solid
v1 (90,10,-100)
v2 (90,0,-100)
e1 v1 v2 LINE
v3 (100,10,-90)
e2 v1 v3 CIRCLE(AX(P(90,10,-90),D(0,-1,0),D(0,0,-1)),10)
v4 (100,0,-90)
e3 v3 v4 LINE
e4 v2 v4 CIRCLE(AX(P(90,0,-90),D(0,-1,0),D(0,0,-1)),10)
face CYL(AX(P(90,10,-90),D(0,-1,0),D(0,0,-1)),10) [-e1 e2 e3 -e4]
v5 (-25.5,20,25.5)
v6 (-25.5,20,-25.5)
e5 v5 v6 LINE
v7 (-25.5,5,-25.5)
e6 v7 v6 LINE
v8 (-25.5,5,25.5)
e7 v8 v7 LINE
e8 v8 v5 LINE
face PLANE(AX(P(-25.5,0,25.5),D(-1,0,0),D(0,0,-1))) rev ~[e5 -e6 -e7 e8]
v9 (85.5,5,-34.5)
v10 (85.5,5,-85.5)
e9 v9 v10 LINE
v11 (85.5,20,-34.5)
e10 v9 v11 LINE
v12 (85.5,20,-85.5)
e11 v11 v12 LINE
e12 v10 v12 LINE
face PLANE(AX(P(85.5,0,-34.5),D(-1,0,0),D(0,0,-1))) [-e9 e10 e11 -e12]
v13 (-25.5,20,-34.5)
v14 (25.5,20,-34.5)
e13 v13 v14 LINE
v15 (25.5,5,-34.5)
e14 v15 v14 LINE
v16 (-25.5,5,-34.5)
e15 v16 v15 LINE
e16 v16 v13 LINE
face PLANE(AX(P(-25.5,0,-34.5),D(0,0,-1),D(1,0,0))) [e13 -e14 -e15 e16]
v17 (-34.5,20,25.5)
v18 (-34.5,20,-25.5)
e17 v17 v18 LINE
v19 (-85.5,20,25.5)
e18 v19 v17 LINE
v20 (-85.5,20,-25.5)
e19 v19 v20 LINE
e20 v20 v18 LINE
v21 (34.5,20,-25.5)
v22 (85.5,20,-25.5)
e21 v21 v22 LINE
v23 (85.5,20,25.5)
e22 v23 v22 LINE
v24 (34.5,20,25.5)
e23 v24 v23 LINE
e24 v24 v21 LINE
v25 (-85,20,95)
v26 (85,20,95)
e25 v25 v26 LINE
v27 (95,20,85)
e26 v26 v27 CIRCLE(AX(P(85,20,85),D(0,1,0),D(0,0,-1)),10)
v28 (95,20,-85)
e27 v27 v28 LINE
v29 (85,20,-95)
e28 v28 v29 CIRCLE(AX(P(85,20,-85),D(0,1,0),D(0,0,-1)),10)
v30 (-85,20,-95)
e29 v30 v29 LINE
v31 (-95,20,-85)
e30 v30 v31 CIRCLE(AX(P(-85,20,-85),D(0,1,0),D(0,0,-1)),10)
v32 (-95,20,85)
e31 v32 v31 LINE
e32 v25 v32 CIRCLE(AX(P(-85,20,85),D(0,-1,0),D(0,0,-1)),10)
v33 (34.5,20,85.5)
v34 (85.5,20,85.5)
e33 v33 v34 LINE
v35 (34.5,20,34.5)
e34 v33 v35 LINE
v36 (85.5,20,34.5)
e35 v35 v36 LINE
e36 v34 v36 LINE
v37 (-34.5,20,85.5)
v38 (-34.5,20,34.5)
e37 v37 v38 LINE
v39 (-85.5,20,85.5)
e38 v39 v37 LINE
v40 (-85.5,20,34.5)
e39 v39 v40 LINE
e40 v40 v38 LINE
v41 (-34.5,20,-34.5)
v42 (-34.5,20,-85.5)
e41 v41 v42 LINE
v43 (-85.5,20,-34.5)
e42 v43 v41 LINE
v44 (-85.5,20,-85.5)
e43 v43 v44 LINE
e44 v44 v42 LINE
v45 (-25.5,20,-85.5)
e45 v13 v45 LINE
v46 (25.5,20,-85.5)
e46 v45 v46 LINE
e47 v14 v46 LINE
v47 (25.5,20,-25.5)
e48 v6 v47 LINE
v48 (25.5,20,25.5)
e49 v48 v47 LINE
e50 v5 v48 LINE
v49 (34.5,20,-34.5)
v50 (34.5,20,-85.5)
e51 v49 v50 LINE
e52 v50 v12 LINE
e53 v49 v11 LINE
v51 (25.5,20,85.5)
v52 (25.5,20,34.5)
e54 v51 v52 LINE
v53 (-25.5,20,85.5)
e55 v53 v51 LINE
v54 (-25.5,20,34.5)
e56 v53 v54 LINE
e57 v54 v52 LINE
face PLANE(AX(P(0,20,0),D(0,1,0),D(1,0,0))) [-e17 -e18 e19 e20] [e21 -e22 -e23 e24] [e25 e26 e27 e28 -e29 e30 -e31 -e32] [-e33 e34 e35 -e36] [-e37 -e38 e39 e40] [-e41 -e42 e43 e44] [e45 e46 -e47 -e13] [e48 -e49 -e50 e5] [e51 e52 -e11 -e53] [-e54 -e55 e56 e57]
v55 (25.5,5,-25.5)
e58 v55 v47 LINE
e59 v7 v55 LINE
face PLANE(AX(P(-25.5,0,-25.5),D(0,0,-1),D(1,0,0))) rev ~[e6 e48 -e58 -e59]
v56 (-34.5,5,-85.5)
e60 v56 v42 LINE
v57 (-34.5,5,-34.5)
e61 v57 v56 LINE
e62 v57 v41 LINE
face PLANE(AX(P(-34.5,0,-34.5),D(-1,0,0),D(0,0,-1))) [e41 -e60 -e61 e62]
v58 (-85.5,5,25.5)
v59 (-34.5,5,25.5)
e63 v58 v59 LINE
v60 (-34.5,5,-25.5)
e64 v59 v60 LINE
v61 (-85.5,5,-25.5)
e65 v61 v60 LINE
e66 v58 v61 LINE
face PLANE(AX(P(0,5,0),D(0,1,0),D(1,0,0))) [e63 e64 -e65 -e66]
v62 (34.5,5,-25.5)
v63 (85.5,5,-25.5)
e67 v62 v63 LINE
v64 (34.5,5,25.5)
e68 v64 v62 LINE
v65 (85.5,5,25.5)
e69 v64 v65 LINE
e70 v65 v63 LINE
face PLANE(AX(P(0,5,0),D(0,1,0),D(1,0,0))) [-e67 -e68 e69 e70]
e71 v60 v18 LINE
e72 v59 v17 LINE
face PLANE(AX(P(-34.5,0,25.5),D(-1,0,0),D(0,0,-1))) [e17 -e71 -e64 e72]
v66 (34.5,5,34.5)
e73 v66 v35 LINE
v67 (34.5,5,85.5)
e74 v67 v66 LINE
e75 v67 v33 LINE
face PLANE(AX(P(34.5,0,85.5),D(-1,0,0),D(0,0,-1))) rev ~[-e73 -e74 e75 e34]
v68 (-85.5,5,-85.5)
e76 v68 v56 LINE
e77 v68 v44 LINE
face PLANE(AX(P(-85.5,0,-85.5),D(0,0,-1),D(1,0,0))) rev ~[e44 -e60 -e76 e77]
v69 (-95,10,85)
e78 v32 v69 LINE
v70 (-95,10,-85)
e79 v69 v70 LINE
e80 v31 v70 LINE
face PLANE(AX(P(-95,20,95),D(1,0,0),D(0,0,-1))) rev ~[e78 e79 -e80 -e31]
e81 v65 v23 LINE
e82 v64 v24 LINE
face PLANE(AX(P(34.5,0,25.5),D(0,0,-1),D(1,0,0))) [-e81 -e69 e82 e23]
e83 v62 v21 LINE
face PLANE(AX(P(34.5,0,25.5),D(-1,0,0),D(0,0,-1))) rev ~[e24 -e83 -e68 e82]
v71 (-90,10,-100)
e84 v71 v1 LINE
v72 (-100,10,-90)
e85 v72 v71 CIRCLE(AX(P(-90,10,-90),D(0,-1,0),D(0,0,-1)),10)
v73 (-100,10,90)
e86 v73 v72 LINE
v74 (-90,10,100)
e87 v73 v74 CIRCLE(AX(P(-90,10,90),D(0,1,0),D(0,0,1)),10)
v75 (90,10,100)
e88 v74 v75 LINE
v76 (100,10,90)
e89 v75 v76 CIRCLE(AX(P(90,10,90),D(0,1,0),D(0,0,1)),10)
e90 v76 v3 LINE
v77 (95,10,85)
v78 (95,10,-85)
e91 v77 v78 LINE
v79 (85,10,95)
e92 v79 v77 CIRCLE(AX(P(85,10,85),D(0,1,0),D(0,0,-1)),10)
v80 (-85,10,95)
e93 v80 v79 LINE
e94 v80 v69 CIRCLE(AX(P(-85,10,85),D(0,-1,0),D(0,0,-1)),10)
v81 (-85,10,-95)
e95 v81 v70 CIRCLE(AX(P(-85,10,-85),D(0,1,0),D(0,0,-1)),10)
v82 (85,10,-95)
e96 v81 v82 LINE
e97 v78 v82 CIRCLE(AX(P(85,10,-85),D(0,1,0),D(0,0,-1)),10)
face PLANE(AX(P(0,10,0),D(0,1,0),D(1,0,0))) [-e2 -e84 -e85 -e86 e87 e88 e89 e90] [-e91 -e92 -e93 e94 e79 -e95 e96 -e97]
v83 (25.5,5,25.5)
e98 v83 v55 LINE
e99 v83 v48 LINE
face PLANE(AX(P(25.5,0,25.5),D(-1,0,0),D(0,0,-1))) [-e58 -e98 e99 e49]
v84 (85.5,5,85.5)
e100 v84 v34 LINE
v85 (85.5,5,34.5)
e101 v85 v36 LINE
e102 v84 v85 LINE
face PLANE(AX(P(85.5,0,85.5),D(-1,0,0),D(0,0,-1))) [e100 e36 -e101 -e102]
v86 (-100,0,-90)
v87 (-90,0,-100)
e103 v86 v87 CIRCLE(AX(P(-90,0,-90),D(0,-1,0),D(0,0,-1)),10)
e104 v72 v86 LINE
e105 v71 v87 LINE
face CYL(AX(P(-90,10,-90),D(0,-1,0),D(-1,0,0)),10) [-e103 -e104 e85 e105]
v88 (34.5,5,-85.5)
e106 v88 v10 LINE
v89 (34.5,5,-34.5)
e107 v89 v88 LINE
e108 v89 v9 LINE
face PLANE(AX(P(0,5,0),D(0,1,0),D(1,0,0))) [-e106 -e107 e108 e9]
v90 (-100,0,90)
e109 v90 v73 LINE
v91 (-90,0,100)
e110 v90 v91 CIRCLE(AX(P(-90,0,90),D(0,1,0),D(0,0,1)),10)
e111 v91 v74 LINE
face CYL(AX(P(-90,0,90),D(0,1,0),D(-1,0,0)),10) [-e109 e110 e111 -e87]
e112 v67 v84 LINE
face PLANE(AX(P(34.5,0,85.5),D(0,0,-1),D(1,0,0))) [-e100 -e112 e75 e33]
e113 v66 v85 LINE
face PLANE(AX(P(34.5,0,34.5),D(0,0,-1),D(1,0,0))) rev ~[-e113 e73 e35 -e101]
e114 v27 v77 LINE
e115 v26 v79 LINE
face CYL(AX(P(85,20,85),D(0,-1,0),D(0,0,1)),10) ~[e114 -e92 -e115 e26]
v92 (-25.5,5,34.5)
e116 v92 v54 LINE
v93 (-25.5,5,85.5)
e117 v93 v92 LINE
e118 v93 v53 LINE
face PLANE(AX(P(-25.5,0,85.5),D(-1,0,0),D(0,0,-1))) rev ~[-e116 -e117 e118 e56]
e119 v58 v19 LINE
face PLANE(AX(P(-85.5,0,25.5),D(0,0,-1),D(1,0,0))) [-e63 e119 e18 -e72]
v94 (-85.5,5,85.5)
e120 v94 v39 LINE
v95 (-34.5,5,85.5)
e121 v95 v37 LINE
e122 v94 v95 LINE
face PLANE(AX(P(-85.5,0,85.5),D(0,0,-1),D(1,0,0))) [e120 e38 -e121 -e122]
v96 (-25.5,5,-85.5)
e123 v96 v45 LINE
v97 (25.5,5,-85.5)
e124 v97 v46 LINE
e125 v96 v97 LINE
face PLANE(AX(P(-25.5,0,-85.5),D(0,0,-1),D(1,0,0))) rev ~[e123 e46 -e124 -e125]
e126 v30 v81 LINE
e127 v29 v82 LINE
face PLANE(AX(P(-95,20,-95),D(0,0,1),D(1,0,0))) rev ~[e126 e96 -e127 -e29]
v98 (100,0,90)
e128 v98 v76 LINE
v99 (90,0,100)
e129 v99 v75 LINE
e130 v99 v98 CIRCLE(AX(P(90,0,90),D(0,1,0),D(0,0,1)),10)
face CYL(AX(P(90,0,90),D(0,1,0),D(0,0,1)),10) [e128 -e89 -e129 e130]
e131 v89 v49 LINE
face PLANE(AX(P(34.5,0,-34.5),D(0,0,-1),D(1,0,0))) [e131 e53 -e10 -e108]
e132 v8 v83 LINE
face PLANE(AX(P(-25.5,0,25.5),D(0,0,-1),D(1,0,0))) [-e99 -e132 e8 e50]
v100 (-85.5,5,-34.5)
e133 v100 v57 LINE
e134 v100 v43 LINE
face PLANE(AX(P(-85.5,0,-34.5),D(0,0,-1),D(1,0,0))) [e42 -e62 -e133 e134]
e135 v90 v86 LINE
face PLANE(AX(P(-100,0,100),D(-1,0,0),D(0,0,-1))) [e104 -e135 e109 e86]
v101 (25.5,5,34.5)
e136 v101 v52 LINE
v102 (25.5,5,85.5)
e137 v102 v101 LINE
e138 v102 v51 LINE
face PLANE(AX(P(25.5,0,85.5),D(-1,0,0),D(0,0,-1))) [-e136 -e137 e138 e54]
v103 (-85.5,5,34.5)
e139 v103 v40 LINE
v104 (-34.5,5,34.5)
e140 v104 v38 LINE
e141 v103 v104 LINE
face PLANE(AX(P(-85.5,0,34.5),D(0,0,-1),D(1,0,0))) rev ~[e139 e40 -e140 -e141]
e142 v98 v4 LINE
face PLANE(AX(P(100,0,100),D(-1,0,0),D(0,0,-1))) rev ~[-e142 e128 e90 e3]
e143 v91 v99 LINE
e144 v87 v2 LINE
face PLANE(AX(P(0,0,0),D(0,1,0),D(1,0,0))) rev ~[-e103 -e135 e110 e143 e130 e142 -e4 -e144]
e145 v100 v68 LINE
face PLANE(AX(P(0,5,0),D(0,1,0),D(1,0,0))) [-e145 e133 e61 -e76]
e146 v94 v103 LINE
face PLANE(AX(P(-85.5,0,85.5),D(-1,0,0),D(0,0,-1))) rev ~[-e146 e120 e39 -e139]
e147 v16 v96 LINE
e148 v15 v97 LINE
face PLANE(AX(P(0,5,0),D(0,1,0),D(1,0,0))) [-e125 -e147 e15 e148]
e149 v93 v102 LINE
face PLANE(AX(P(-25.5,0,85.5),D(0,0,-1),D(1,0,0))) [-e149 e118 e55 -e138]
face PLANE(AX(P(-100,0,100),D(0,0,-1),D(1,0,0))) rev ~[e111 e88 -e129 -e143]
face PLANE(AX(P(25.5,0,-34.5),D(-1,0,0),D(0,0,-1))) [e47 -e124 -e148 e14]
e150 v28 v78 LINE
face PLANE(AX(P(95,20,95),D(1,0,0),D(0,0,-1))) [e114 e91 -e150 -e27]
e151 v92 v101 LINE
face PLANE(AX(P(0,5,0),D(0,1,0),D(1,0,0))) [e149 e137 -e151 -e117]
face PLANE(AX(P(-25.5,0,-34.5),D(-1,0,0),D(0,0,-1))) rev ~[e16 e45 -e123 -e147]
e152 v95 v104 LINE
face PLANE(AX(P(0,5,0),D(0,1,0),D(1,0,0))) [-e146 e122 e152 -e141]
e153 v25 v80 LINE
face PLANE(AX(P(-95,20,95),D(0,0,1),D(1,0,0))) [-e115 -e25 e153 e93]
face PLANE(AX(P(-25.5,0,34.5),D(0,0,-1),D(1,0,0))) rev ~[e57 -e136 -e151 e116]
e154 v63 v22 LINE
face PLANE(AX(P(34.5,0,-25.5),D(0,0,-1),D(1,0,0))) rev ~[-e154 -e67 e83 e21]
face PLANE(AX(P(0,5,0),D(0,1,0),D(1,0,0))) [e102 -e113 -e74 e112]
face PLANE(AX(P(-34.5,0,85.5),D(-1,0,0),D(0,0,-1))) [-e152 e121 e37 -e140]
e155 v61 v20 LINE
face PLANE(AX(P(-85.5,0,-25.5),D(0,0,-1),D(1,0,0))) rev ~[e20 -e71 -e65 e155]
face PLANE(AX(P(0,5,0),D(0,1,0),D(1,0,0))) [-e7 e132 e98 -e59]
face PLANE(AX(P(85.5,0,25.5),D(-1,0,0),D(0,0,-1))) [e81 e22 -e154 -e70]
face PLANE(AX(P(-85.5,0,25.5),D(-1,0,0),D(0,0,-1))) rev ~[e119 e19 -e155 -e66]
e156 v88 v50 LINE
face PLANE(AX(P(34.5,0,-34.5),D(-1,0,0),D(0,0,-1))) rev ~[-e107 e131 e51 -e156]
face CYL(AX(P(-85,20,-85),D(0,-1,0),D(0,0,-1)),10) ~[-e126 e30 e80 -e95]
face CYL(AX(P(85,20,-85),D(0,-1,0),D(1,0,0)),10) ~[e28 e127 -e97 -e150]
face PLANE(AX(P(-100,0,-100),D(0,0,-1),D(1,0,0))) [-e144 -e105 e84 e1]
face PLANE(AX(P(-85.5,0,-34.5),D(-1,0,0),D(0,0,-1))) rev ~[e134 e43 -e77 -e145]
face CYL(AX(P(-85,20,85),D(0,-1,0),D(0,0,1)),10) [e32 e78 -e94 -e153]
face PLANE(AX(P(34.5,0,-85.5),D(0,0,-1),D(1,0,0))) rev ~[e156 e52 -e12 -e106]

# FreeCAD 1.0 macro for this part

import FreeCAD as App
import Part
import Sketcher

V = App.Vector


def edges_at(feature, points):
    """Names of the edges that pass closest to the given points."""
    edges = feature.Shape.Edges
    near = lambda p: min(range(len(edges)), key=lambda i: edges[i].distToShape(Part.Vertex(*p))[0])
    return sorted({f"Edge{near(p) + 1}" for p in points})

doc = App.newDocument("Part")
body = doc.addObject("PartDesign::Body", "Body")

sketch1 = doc.addObject("Sketcher::SketchObject", "Sketch")
body.addObject(sketch1)
sketch1.AttachmentSupport = (doc.XZ_Plane, [""])
sketch1.MapMode = "FlatFace"
sketch1.addGeometry([
    Part.LineSegment(V(-100, -100, 0), V(-100, 100, 0)),
    Part.LineSegment(V(-100, 100, 0), V(100, 100, 0)),
    Part.LineSegment(V(100, 100, 0), V(100, -100, 0)),
    Part.LineSegment(V(100, -100, 0), V(-100, -100, 0)),
    Part.LineSegment(V(-34, 86, 0), V(-86, 86, 0)),
    Part.LineSegment(V(-86, 86, 0), V(-86, 34, 0)),
    Part.LineSegment(V(-86, 34, 0), V(-34, 34, 0)),
    Part.LineSegment(V(-34, 34, 0), V(-34, 86, 0)),
    Part.LineSegment(V(26, 86, 0), V(-26, 86, 0)),
    Part.LineSegment(V(-26, 86, 0), V(-26, 34, 0)),
    Part.LineSegment(V(-26, 34, 0), V(26, 34, 0)),
    Part.LineSegment(V(26, 34, 0), V(26, 86, 0)),
    Part.LineSegment(V(86, 86, 0), V(34, 86, 0)),
    Part.LineSegment(V(34, 86, 0), V(34, 34, 0)),
    Part.LineSegment(V(34, 34, 0), V(86, 34, 0)),
    Part.LineSegment(V(86, 34, 0), V(86, 86, 0)),
    Part.LineSegment(V(-34, 26, 0), V(-86, 26, 0)),
    Part.LineSegment(V(-86, 26, 0), V(-86, -26, 0)),
    Part.LineSegment(V(-86, -26, 0), V(-34, -26, 0)),
    Part.LineSegment(V(-34, -26, 0), V(-34, 26, 0)),
    Part.LineSegment(V(-34, -34, 0), V(-86, -34, 0)),
    Part.LineSegment(V(-86, -34, 0), V(-86, -86, 0)),
    Part.LineSegment(V(-86, -86, 0), V(-34, -86, 0)),
    Part.LineSegment(V(-34, -86, 0), V(-34, -34, 0)),
    Part.LineSegment(V(26, 26, 0), V(-26, 26, 0)),
    Part.LineSegment(V(-26, 26, 0), V(-26, -26, 0)),
    Part.LineSegment(V(-26, -26, 0), V(26, -26, 0)),
    Part.LineSegment(V(26, -26, 0), V(26, 26, 0)),
    Part.LineSegment(V(86, 26, 0), V(34, 26, 0)),
    Part.LineSegment(V(34, 26, 0), V(34, -26, 0)),
    Part.LineSegment(V(34, -26, 0), V(86, -26, 0)),
    Part.LineSegment(V(86, -26, 0), V(86, 26, 0)),
    Part.LineSegment(V(26, -34, 0), V(-26, -34, 0)),
    Part.LineSegment(V(-26, -34, 0), V(-26, -86, 0)),
    Part.LineSegment(V(-26, -86, 0), V(26, -86, 0)),
    Part.LineSegment(V(26, -86, 0), V(26, -34, 0)),
    Part.LineSegment(V(86, -34, 0), V(34, -34, 0)),
    Part.LineSegment(V(34, -34, 0), V(34, -86, 0)),
    Part.LineSegment(V(34, -86, 0), V(86, -86, 0)),
    Part.LineSegment(V(86, -86, 0), V(86, -34, 0)),
], False)
sketch1.addConstraint([
    Sketcher.Constraint("Coincident", 0, 2, 1, 1),
    Sketcher.Constraint("Coincident", 1, 2, 2, 1),
    Sketcher.Constraint("Coincident", 2, 2, 3, 1),
    Sketcher.Constraint("Coincident", 3, 2, 0, 1),
    Sketcher.Constraint("Coincident", 4, 2, 5, 1),
    Sketcher.Constraint("Coincident", 5, 2, 6, 1),
    Sketcher.Constraint("Coincident", 6, 2, 7, 1),
    Sketcher.Constraint("Coincident", 7, 2, 4, 1),
    Sketcher.Constraint("Coincident", 8, 2, 9, 1),
    Sketcher.Constraint("Coincident", 9, 2, 10, 1),
    Sketcher.Constraint("Coincident", 10, 2, 11, 1),
    Sketcher.Constraint("Coincident", 11, 2, 8, 1),
    Sketcher.Constraint("Coincident", 12, 2, 13, 1),
    Sketcher.Constraint("Coincident", 13, 2, 14, 1),
    Sketcher.Constraint("Coincident", 14, 2, 15, 1),
    Sketcher.Constraint("Coincident", 15, 2, 12, 1),
    Sketcher.Constraint("Coincident", 16, 2, 17, 1),
    Sketcher.Constraint("Coincident", 17, 2, 18, 1),
    Sketcher.Constraint("Coincident", 18, 2, 19, 1),
    Sketcher.Constraint("Coincident", 19, 2, 16, 1),
    Sketcher.Constraint("Coincident", 20, 2, 21, 1),
    Sketcher.Constraint("Coincident", 21, 2, 22, 1),
    Sketcher.Constraint("Coincident", 22, 2, 23, 1),
    Sketcher.Constraint("Coincident", 23, 2, 20, 1),
    Sketcher.Constraint("Coincident", 24, 2, 25, 1),
    Sketcher.Constraint("Coincident", 25, 2, 26, 1),
    Sketcher.Constraint("Coincident", 26, 2, 27, 1),
    Sketcher.Constraint("Coincident", 27, 2, 24, 1),
    Sketcher.Constraint("Coincident", 28, 2, 29, 1),
    Sketcher.Constraint("Coincident", 29, 2, 30, 1),
    Sketcher.Constraint("Coincident", 30, 2, 31, 1),
    Sketcher.Constraint("Coincident", 31, 2, 28, 1),
    Sketcher.Constraint("Coincident", 32, 2, 33, 1),
    Sketcher.Constraint("Coincident", 33, 2, 34, 1),
    Sketcher.Constraint("Coincident", 34, 2, 35, 1),
    Sketcher.Constraint("Coincident", 35, 2, 32, 1),
    Sketcher.Constraint("Coincident", 36, 2, 37, 1),
    Sketcher.Constraint("Coincident", 37, 2, 38, 1),
    Sketcher.Constraint("Coincident", 38, 2, 39, 1),
    Sketcher.Constraint("Coincident", 39, 2, 36, 1),
    Sketcher.Constraint("Vertical", 0),
    Sketcher.Constraint("Horizontal", 1),
    Sketcher.Constraint("Vertical", 2),
    Sketcher.Constraint("Horizontal", 3),
    Sketcher.Constraint("Horizontal", 4),
    Sketcher.Constraint("Vertical", 5),
    Sketcher.Constraint("Horizontal", 6),
    Sketcher.Constraint("Vertical", 7),
    Sketcher.Constraint("Horizontal", 8),
    Sketcher.Constraint("Vertical", 9),
    Sketcher.Constraint("Horizontal", 10),
    Sketcher.Constraint("Vertical", 11),
    Sketcher.Constraint("Horizontal", 12),
    Sketcher.Constraint("Vertical", 13),
    Sketcher.Constraint("Horizontal", 14),
    Sketcher.Constraint("Vertical", 15),
    Sketcher.Constraint("Horizontal", 16),
    Sketcher.Constraint("Vertical", 17),
    Sketcher.Constraint("Horizontal", 18),
    Sketcher.Constraint("Vertical", 19),
    Sketcher.Constraint("Horizontal", 20),
    Sketcher.Constraint("Vertical", 21),
    Sketcher.Constraint("Horizontal", 22),
    Sketcher.Constraint("Vertical", 23),
    Sketcher.Constraint("Horizontal", 24),
    Sketcher.Constraint("Vertical", 25),
    Sketcher.Constraint("Horizontal", 26),
    Sketcher.Constraint("Vertical", 27),
    Sketcher.Constraint("Horizontal", 28),
    Sketcher.Constraint("Vertical", 29),
    Sketcher.Constraint("Horizontal", 30),
    Sketcher.Constraint("Vertical", 31),
    Sketcher.Constraint("Horizontal", 32),
    Sketcher.Constraint("Vertical", 33),
    Sketcher.Constraint("Horizontal", 34),
    Sketcher.Constraint("Vertical", 35),
    Sketcher.Constraint("Horizontal", 36),
    Sketcher.Constraint("Vertical", 37),
    Sketcher.Constraint("Horizontal", 38),
    Sketcher.Constraint("Vertical", 39),
    Sketcher.Constraint("Symmetric", 0, 2, 2, 2, -1, 1),
    Sketcher.Constraint("Symmetric", 14, 2, 20, 2, -1, 1),
    Sketcher.Constraint("Symmetric", 12, 2, 22, 2, -1, 1),
    Sketcher.Constraint("Symmetric", 24, 2, 26, 2, -1, 1),
    Sketcher.Constraint("Symmetric", 18, 2, 28, 2, -1, 1),
    Sketcher.Constraint("Symmetric", 16, 2, 30, 2, -1, 1),
    Sketcher.Constraint("Symmetric", 10, 2, 32, 2, -1, 1),
    Sketcher.Constraint("Symmetric", 8, 2, 34, 2, -1, 1),
    Sketcher.Constraint("Symmetric", 6, 2, 36, 2, -1, 1),
    Sketcher.Constraint("Symmetric", 4, 2, 38, 2, -1, 1),
    Sketcher.Constraint("Symmetric", 7, 2, 12, 2, -2),
    Sketcher.Constraint("Symmetric", 5, 2, 14, 2, -2),
    Sketcher.Constraint("Horizontal", 7, 2, 8, 2),
    Sketcher.Constraint("Horizontal", 6, 2, 9, 2),
    Sketcher.Constraint("Horizontal", 19, 2, 24, 2),
    Sketcher.Constraint("Horizontal", 18, 2, 25, 2),
    Sketcher.Constraint("Vertical", 5, 2, 16, 2),
    Sketcher.Constraint("Vertical", 7, 2, 18, 2),
    Sketcher.Constraint("Vertical", 9, 2, 24, 2),
    Sketcher.Constraint("Vertical", 11, 2, 26, 2),
    Sketcher.Constraint("Equal", 6, 8),
    Sketcher.Constraint("Equal", 3, 0),
    Sketcher.Constraint("Equal", 38, 5),
    Sketcher.Constraint("Equal", 15, 17),
    Sketcher.Constraint("DistanceX", 1, 1, 1, 2, 200.0),
    Sketcher.Constraint("DistanceX", 4, 2, 4, 1, 51.0),
    Sketcher.Constraint("DistanceX", 7, 2, 8, 2, 9.0),
    Sketcher.Constraint("DistanceY", 16, 2, 5, 2, 9.0),
])
pad1 = doc.addObject("PartDesign::Pad", "Pad")
body.addObject(pad1)
pad1.Profile = sketch1
pad1.Length = 20
pad1.Reversed = True

sketch2 = doc.addObject("Sketcher::SketchObject", "Sketch001")
body.addObject(sketch2)
sketch2.AttachmentSupport = (doc.XZ_Plane, [""])
sketch2.MapMode = "FlatFace"
sketch2.addGeometry([
    Part.LineSegment(V(-100, -100, 0), V(-100, 100, 0)),
    Part.LineSegment(V(-100, 100, 0), V(100, 100, 0)),
    Part.LineSegment(V(100, 100, 0), V(100, -100, 0)),
    Part.LineSegment(V(100, -100, 0), V(-100, -100, 0)),
], False)
sketch2.addConstraint([
    Sketcher.Constraint("Coincident", 0, 2, 1, 1),
    Sketcher.Constraint("Coincident", 1, 2, 2, 1),
    Sketcher.Constraint("Coincident", 2, 2, 3, 1),
    Sketcher.Constraint("Coincident", 3, 2, 0, 1),
    Sketcher.Constraint("Vertical", 0),
    Sketcher.Constraint("Horizontal", 1),
    Sketcher.Constraint("Vertical", 2),
    Sketcher.Constraint("Horizontal", 3),
    Sketcher.Constraint("Symmetric", 0, 2, 2, 2, -1, 1),
    Sketcher.Constraint("Equal", 3, 0),
    Sketcher.Constraint("DistanceX", 1, 1, 1, 2, 200.0),
])
pad2 = doc.addObject("PartDesign::Pad", "Pad001")
body.addObject(pad2)
pad2.Profile = sketch2
pad2.Length = 5
pad2.Reversed = True

sketch3 = doc.addObject("Sketcher::SketchObject", "Sketch002")
body.addObject(sketch3)
sketch3.AttachmentSupport = (doc.XZ_Plane, [""])
sketch3.MapMode = "FlatFace"
sketch3.AttachmentOffset = App.Placement(V(0, 0, -20), App.Rotation())
sketch3.addGeometry([
    Part.LineSegment(V(-100, -100, 0), V(-100, 100, 0)),
    Part.LineSegment(V(-100, 100, 0), V(100, 100, 0)),
    Part.LineSegment(V(100, 100, 0), V(100, -100, 0)),
    Part.LineSegment(V(100, -100, 0), V(-100, -100, 0)),
    Part.LineSegment(V(95, 95, 0), V(-95, 95, 0)),
    Part.LineSegment(V(-95, 95, 0), V(-95, -95, 0)),
    Part.LineSegment(V(-95, -95, 0), V(95, -95, 0)),
    Part.LineSegment(V(95, -95, 0), V(95, 95, 0)),
], False)
sketch3.addConstraint([
    Sketcher.Constraint("Coincident", 0, 2, 1, 1),
    Sketcher.Constraint("Coincident", 1, 2, 2, 1),
    Sketcher.Constraint("Coincident", 2, 2, 3, 1),
    Sketcher.Constraint("Coincident", 3, 2, 0, 1),
    Sketcher.Constraint("Coincident", 4, 2, 5, 1),
    Sketcher.Constraint("Coincident", 5, 2, 6, 1),
    Sketcher.Constraint("Coincident", 6, 2, 7, 1),
    Sketcher.Constraint("Coincident", 7, 2, 4, 1),
    Sketcher.Constraint("Vertical", 0),
    Sketcher.Constraint("Horizontal", 1),
    Sketcher.Constraint("Vertical", 2),
    Sketcher.Constraint("Horizontal", 3),
    Sketcher.Constraint("Horizontal", 4),
    Sketcher.Constraint("Vertical", 5),
    Sketcher.Constraint("Horizontal", 6),
    Sketcher.Constraint("Vertical", 7),
    Sketcher.Constraint("Symmetric", 0, 2, 2, 2, -1, 1),
    Sketcher.Constraint("Symmetric", 4, 2, 6, 2, -1, 1),
    Sketcher.Constraint("Equal", 3, 0),
    Sketcher.Constraint("Equal", 6, 5),
    Sketcher.Constraint("DistanceX", 1, 1, 1, 2, 200.0),
    Sketcher.Constraint("DistanceX", 4, 2, 4, 1, 190.0),
])
pocket1 = doc.addObject("PartDesign::Pocket", "Pocket")
body.addObject(pocket1)
pocket1.Profile = sketch3
pocket1.Length = 10
pocket1.Reversed = True
doc.recompute()

fillet = doc.addObject("PartDesign::Fillet", "Fillet")
body.addObject(fillet)
fillet.Base = (pocket1, edges_at(pocket1, [
    (-100, 5, 100),
    (100, 5, 100),
    (-100, 5, -100),
    (100, 5, -100),
    (-95, 15, -95),
    (95, 15, -95),
    (95, 15, 95),
    (-95, 15, 95),
]))
fillet.Radius = 10

doc.recompute()
